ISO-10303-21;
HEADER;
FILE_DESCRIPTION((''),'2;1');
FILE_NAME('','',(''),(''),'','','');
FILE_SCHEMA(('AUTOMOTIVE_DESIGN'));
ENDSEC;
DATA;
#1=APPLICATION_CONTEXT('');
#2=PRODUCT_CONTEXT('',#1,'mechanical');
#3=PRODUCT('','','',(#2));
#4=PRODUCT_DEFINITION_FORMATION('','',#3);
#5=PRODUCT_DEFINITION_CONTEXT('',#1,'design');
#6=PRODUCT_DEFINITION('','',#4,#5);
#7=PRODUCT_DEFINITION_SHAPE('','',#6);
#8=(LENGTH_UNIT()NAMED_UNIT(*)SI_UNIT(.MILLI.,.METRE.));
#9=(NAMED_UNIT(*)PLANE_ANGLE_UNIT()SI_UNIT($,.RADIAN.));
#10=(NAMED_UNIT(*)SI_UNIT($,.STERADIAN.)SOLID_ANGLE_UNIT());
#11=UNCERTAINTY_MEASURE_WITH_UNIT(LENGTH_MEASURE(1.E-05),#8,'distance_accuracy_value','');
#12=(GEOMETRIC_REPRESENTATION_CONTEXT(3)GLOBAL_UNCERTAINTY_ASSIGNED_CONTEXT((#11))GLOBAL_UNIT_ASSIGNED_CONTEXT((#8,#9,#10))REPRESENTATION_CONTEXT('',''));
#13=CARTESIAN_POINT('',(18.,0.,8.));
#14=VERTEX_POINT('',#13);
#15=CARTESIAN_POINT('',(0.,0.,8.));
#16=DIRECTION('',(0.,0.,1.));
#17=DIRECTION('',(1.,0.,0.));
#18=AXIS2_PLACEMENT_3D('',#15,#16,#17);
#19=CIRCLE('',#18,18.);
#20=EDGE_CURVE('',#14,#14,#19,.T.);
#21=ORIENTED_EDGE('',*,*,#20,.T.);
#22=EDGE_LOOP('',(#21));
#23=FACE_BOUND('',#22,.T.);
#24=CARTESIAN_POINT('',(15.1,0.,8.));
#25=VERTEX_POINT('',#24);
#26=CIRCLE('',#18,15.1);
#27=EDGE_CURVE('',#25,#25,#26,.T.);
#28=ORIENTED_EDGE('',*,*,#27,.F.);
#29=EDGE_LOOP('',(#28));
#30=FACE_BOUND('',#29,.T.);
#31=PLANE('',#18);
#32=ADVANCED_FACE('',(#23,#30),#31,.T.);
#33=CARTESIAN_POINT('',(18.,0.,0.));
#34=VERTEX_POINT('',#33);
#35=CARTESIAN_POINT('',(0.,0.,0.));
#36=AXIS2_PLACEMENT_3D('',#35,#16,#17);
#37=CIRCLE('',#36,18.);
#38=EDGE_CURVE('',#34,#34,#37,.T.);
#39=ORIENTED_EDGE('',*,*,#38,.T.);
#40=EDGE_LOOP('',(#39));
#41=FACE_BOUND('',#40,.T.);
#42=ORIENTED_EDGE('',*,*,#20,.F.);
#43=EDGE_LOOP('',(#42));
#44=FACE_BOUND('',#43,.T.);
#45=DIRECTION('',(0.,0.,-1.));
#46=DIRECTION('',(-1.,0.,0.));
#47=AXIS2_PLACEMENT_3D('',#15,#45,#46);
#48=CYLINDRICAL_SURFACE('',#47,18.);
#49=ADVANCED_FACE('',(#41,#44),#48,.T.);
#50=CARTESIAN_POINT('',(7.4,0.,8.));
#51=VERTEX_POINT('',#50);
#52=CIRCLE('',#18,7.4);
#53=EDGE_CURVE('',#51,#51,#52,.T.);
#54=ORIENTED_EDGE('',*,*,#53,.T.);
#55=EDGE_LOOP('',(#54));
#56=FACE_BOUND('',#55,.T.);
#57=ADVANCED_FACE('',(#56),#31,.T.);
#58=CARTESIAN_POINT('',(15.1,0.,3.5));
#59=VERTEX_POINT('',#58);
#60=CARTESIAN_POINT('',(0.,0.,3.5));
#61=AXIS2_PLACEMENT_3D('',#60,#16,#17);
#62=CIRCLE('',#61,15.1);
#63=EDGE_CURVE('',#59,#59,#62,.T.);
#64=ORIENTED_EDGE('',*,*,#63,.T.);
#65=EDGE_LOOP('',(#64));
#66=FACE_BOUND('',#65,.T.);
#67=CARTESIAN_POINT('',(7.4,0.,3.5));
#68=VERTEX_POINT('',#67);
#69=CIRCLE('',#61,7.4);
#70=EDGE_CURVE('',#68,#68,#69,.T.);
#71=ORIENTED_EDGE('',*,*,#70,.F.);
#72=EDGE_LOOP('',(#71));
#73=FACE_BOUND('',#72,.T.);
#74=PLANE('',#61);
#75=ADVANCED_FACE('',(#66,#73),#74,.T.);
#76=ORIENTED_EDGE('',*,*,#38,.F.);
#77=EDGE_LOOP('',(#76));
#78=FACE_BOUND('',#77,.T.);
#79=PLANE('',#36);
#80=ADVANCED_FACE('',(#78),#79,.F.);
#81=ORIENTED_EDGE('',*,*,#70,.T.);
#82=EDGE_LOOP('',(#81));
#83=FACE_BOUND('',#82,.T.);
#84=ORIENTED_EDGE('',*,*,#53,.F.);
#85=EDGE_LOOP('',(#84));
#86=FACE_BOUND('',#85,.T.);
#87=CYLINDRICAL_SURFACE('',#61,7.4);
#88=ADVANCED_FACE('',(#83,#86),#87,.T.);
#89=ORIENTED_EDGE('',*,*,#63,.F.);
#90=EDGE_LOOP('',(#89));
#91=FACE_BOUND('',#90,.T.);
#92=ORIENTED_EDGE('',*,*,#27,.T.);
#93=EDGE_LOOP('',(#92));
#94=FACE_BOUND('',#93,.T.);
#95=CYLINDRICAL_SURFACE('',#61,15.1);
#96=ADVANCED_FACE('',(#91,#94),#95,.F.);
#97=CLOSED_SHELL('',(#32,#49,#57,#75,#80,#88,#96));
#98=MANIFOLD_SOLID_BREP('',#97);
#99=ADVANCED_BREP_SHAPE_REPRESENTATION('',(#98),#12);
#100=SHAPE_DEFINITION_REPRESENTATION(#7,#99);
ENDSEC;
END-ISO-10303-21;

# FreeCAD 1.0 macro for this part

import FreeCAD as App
import Part
import Sketcher

V = App.Vector
Q = App.Units.Quantity

doc = App.newDocument("Part")
body = doc.addObject("PartDesign::Body", "Body")

# Sketch on XY plane
sketch1 = body.newObject("Sketcher::SketchObject", "Sketch")
sketch1.AttachmentSupport = (doc.getObject("XY_Plane"), [""])
sketch1.MapMode = "FlatFace"
sketch1.addGeometry(Part.Circle(V(0, 0, 0), V(0, 0, 1), 18), False)
sketch1.addConstraint(Sketcher.Constraint("Coincident", 0, 3, -1, 1))
sketch1.addConstraint(Sketcher.Constraint("Diameter", 0, Q("36 mm")))
pad1 = body.newObject("PartDesign::Pad", "Pad")
pad1.Profile = sketch1
pad1.Length = 8

# Sketch on XY plane
sketch2 = body.newObject("Sketcher::SketchObject", "Sketch001")
sketch2.AttachmentSupport = (doc.getObject("XY_Plane"), [""])
sketch2.MapMode = "FlatFace"
sketch2.AttachmentOffset = App.Placement(V(0, 0, 8), App.Rotation())
sketch2.addGeometry(Part.Circle(V(0, 0, 0), V(0, 0, 1), 15), False)
sketch2.addGeometry(Part.Circle(V(0, 0, 0), V(0, 0, 1), 7), False)
sketch2.addConstraint(Sketcher.Constraint("Coincident", 0, 3, -1, 1))
sketch2.addConstraint(Sketcher.Constraint("Coincident", 1, 3, -1, 1))
sketch2.addConstraint(Sketcher.Constraint("Diameter", 0, Q("30.2 mm")))
sketch2.addConstraint(Sketcher.Constraint("Diameter", 1, Q("14.8 mm")))
pocket1 = body.newObject("PartDesign::Pocket", "Pocket")
pocket1.Profile = sketch2
pocket1.Length = 4.5

doc.recompute()
